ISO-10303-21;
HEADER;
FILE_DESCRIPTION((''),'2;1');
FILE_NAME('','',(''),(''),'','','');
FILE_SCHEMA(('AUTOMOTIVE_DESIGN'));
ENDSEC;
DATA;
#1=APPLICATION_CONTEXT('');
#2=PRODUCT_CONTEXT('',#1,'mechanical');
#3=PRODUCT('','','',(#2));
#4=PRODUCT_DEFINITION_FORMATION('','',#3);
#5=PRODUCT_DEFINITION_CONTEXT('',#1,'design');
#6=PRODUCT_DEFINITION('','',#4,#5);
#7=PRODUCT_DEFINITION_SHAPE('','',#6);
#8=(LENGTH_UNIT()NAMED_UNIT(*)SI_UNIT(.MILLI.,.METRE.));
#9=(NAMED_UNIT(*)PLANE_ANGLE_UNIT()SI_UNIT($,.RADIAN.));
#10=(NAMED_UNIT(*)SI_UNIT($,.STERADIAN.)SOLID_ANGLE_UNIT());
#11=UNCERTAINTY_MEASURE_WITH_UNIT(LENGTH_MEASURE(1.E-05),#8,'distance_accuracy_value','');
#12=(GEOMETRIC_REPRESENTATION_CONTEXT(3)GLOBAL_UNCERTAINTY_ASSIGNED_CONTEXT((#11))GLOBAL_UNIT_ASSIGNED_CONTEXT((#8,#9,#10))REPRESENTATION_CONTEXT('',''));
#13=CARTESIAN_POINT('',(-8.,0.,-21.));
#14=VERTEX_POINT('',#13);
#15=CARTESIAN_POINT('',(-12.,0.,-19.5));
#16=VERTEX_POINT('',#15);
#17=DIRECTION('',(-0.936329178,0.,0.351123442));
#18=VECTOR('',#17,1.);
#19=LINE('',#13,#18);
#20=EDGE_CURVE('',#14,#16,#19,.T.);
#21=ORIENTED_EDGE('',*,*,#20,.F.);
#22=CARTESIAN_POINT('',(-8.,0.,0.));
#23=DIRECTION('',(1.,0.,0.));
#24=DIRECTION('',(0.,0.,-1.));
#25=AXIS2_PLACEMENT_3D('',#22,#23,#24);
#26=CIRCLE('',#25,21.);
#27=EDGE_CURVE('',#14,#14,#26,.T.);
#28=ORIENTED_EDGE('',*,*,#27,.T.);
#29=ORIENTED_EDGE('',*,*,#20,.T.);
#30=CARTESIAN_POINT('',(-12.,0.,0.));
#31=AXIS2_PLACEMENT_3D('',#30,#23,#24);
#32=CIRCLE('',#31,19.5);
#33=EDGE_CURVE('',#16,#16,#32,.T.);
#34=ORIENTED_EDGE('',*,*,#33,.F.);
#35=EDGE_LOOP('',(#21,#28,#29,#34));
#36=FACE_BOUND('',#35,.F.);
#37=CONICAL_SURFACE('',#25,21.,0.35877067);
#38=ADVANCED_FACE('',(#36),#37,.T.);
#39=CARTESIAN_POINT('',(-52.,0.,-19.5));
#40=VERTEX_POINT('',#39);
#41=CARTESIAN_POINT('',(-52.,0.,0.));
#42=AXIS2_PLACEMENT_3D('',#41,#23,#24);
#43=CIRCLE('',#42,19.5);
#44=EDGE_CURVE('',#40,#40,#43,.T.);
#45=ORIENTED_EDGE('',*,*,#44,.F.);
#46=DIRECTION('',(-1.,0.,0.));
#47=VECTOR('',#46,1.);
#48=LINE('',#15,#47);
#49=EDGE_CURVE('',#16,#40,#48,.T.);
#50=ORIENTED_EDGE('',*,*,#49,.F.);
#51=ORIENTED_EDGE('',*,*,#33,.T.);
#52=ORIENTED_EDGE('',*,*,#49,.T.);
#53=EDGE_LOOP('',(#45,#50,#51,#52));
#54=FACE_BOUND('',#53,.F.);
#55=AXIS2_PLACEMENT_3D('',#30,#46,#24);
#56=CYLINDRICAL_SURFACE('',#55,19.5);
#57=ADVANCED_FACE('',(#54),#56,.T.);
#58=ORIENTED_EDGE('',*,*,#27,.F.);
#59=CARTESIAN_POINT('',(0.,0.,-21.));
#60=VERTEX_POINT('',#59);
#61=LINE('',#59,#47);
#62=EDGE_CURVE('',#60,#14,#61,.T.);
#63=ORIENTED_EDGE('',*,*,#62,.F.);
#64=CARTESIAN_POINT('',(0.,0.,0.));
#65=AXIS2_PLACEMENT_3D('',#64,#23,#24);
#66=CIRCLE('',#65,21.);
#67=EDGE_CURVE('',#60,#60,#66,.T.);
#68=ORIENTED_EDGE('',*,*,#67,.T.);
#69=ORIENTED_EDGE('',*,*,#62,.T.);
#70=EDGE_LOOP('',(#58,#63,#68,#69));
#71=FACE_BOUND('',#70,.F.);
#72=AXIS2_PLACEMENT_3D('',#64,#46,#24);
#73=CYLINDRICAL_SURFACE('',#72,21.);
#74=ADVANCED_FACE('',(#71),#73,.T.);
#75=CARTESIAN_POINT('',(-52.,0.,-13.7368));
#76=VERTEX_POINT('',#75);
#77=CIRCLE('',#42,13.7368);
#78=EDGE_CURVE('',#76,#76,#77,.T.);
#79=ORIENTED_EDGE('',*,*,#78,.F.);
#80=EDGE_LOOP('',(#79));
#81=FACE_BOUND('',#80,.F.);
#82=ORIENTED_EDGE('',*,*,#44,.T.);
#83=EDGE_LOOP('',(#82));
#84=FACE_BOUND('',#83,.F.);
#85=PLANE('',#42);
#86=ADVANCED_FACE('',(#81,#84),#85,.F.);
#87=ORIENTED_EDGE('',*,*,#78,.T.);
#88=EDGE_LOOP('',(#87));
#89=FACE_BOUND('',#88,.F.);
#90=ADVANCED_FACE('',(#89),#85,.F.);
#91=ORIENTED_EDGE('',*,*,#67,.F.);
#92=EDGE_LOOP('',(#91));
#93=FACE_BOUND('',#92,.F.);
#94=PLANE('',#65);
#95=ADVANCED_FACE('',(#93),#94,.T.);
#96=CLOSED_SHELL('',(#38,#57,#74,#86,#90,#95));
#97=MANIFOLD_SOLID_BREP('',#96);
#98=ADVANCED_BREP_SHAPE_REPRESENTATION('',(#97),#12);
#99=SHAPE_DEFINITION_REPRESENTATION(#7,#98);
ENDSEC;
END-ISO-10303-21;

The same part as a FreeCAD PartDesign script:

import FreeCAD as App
import Part
import Sketcher

V = App.Vector
Q = App.Units.Quantity

doc = App.newDocument("Part")
body = doc.addObject("PartDesign::Body", "Body")

sketch1 = body.newObject("Sketcher::SketchObject", "Sketch")
sketch1.AttachmentSupport = (doc.getObject("XZ_Plane"), [""])
sketch1.MapMode = "FlatFace"
sketch1.addGeometry([
    Part.LineSegment(V(-52, 0, 0), V(0, 0, 0)),
    Part.LineSegment(V(0, 0, 0), V(0, -21, 0)),
    Part.LineSegment(V(0, -21, 0), V(-8, -21, 0)),
    Part.LineSegment(V(-8, -21, 0), V(-12, -19.5, 0)),
    Part.LineSegment(V(-12, -19.5, 0), V(-52, -19.5, 0)),
    Part.LineSegment(V(-52, -19.5, 0), V(-52, 0, 0)),
], False)
sketch1.addConstraint([
    Sketcher.Constraint("Coincident", 0, 2, 1, 1),
    Sketcher.Constraint("Coincident", 1, 2, 2, 1),
    Sketcher.Constraint("Coincident", 2, 2, 3, 1),
    Sketcher.Constraint("Coincident", 3, 2, 4, 1),
    Sketcher.Constraint("Coincident", 4, 2, 5, 1),
    Sketcher.Constraint("Coincident", 5, 2, 0, 1),
    Sketcher.Constraint("Horizontal", 0),
    Sketcher.Constraint("Vertical", 1),
    Sketcher.Constraint("Horizontal", 2),
    Sketcher.Constraint("Horizontal", 4),
    Sketcher.Constraint("Vertical", 5),
    Sketcher.Constraint("Coincident", 0, 2, -1, 1),
    Sketcher.Constraint("DistanceX", 0, 1, 0, 2, Q("52 mm")),
    Sketcher.Constraint("DistanceX", 2, 2, 2, 1, Q("8 mm")),
    Sketcher.Constraint("DistanceY", 1, 2, 1, 1, Q("21 mm")),
    Sketcher.Constraint("DistanceY", 5, 1, 5, 2, Q("19.5 mm")),
    Sketcher.Constraint("DistanceX", 3, 2, -1, 1, Q("12 mm")),
])
revolution = body.newObject("PartDesign::Revolution", "Revolution")
revolution.Profile = sketch1
revolution.ReferenceAxis = (sketch1, ["H_Axis"])
revolution.Angle = 360

doc.recompute()
